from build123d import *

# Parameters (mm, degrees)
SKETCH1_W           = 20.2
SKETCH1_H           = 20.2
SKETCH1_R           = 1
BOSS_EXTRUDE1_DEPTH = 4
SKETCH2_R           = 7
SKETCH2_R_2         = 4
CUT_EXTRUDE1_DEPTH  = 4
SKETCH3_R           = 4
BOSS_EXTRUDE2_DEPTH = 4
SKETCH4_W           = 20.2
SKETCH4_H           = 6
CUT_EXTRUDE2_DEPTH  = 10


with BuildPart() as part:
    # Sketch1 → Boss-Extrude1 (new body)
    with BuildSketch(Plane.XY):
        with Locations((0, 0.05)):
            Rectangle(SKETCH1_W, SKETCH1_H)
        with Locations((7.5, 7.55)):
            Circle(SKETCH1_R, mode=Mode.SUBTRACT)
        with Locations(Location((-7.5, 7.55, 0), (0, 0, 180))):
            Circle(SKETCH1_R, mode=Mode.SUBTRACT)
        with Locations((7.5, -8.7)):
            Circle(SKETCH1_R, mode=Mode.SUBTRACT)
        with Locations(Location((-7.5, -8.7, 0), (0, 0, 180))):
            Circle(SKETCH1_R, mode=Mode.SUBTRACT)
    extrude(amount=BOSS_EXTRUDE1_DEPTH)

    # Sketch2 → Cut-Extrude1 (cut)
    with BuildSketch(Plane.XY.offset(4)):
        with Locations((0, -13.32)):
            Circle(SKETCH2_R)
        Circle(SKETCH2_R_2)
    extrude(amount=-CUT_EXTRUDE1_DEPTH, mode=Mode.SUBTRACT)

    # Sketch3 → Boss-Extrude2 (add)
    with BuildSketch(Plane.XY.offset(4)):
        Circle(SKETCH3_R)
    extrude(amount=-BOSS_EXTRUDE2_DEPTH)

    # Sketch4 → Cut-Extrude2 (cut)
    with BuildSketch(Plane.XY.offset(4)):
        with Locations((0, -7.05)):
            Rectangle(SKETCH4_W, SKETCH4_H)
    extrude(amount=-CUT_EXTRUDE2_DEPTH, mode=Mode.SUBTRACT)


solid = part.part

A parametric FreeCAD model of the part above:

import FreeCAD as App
import Part
import Sketcher
from FreeCAD import Vector
Q = App.Units.Quantity

doc = App.newDocument("Part")
body = doc.addObject("PartDesign::Body", "Body")

# Sketch on XY plane
sketch1 = body.newObject("Sketcher::SketchObject", "Sketch")
sketch1.AttachmentSupport = (doc.getObject("XY_Plane"), [""])
sketch1.MapMode = "FlatFace"
sketch1.addGeometry(Part.LineSegment(Vector(-10.1, 10.2, 0), Vector(-10.1, -10.1, 0)), False)
sketch1.addGeometry(Part.LineSegment(Vector(-10.1, -10.1, 0), Vector(10.1, -10.1, 0)), False)
sketch1.addGeometry(Part.LineSegment(Vector(10.1, -10.1, 0), Vector(10.1, 10.2, 0)), False)
sketch1.addGeometry(Part.LineSegment(Vector(10.1, 10.2, 0), Vector(-10.1, 10.2, 0)), False)
sketch1.addGeometry(Part.Circle(Vector(-7.5, -8.7, 0), Vector(0, 0, 1), 1), False)
sketch1.addGeometry(Part.Circle(Vector(7.5, -8.7, 0), Vector(0, 0, 1), 1), False)
sketch1.addGeometry(Part.Circle(Vector(-7.5, 7.5, 0), Vector(0, 0, 1), 1), False)
sketch1.addGeometry(Part.Circle(Vector(7.5, 7.5, 0), Vector(0, 0, 1), 1), False)
sketch1.addConstraint(Sketcher.Constraint("Coincident", 0, 2, 1, 1))
sketch1.addConstraint(Sketcher.Constraint("Coincident", 1, 2, 2, 1))
sketch1.addConstraint(Sketcher.Constraint("Coincident", 2, 2, 3, 1))
sketch1.addConstraint(Sketcher.Constraint("Coincident", 3, 2, 0, 1))
sketch1.addConstraint(Sketcher.Constraint("Vertical", 0))
sketch1.addConstraint(Sketcher.Constraint("Horizontal", 1))
sketch1.addConstraint(Sketcher.Constraint("Vertical", 2))
sketch1.addConstraint(Sketcher.Constraint("Horizontal", 3))
sketch1.addConstraint(Sketcher.Constraint("Equal", 4, 5))
sketch1.addConstraint(Sketcher.Constraint("Equal", 5, 6))
sketch1.addConstraint(Sketcher.Constraint("Equal", 6, 7))
sketch1.addConstraint(Sketcher.Constraint("Symmetric", 4, 3, 5, 3, -2))
sketch1.addConstraint(Sketcher.Constraint("Symmetric", 6, 3, 7, 3, -2))
sketch1.addConstraint(Sketcher.Constraint("Vertical", 4, 3, 6, 3))
sketch1.addConstraint(Sketcher.Constraint("Equal", 3, 0))
sketch1.addConstraint(Sketcher.Constraint("Diameter", 4, Q("2 mm")))
sketch1.addConstraint(Sketcher.Constraint("DistanceX", 1, 1, 1, 2, Q("20.2 mm")))
sketch1.addConstraint(Sketcher.Constraint("DistanceX", 4, 3, 5, 3, Q("15 mm")))
sketch1.addConstraint(Sketcher.Constraint("DistanceY", 4, 3, -1, 1, Q("8.7 mm")))
sketch1.addConstraint(Sketcher.Constraint("DistanceX", 0, 2, -1, 1, Q("10.1 mm")))
sketch1.addConstraint(Sketcher.Constraint("DistanceY", 0, 2, 6, 3, Q("17.6 mm")))
sketch1.addConstraint(Sketcher.Constraint("DistanceY", -1, 1, 6, 3, Q("7.55 mm")))
pad1 = body.newObject("PartDesign::Pad", "Pad")
pad1.Profile = sketch1
pad1.Length = 4

# Sketch on XY plane
sketch2 = body.newObject("Sketcher::SketchObject", "Sketch001")
sketch2.AttachmentSupport = (doc.getObject("XY_Plane"), [""])
sketch2.MapMode = "FlatFace"
sketch2.AttachmentOffset = App.Placement(Vector(0, 0, 4), App.Rotation())
sketch2.addGeometry(Part.Circle(Vector(0, -13.3, 0), Vector(0, 0, 1), 7), False)
sketch2.addGeometry(Part.Circle(Vector(0, 0, 0), Vector(0, 0, 1), 4), False)
sketch2.addConstraint(Sketcher.Constraint("Coincident", 1, 3, -1, 1))
sketch2.addConstraint(Sketcher.Constraint("PointOnObject", 0, 3, -2))
sketch2.addConstraint(Sketcher.Constraint("Diameter", 0, Q("14 mm")))
sketch2.addConstraint(Sketcher.Constraint("Diameter", 1, Q("8 mm")))
sketch2.addConstraint(Sketcher.Constraint("DistanceY", 0, 3, -1, 1, Q("13.32 mm")))
pocket1 = body.newObject("PartDesign::Pocket", "Pocket")
pocket1.Profile = sketch2
pocket1.Length = 4

# Sketch on XY plane
sketch3 = body.newObject("Sketcher::SketchObject", "Sketch002")
sketch3.AttachmentSupport = (doc.getObject("XY_Plane"), [""])
sketch3.MapMode = "FlatFace"
sketch3.AttachmentOffset = App.Placement(Vector(0, 0, 4), App.Rotation())
sketch3.addGeometry(Part.Circle(Vector(0, 0, 0), Vector(0, 0, 1), 4), False)
sketch3.addConstraint(Sketcher.Constraint("Coincident", 0, 3, -1, 1))
sketch3.addConstraint(Sketcher.Constraint("Diameter", 0, Q("8 mm")))
pad2 = body.newObject("PartDesign::Pad", "Pad001")
pad2.Profile = sketch3
pad2.Length = 4
pad2.Reversed = True

# Sketch on XY plane
sketch4 = body.newObject("Sketcher::SketchObject", "Sketch003")
sketch4.AttachmentSupport = (doc.getObject("XY_Plane"), [""])
sketch4.MapMode = "FlatFace"
sketch4.AttachmentOffset = App.Placement(Vector(0, 0, 4), App.Rotation())
sketch4.addGeometry(Part.LineSegment(Vector(-10, -4, 0), Vector(-10, -10, 0)), False)
sketch4.addGeometry(Part.LineSegment(Vector(-10, -10, 0), Vector(10, -10, 0)), False)
sketch4.addGeometry(Part.LineSegment(Vector(10, -10, 0), Vector(10, -4, 0)), False)
sketch4.addGeometry(Part.LineSegment(Vector(10, -4, 0), Vector(-10, -4, 0)), False)
sketch4.addConstraint(Sketcher.Constraint("Coincident", 0, 2, 1, 1))
sketch4.addConstraint(Sketcher.Constraint("Coincident", 1, 2, 2, 1))
sketch4.addConstraint(Sketcher.Constraint("Coincident", 2, 2, 3, 1))
sketch4.addConstraint(Sketcher.Constraint("Coincident", 3, 2, 0, 1))
sketch4.addConstraint(Sketcher.Constraint("Vertical", 0))
sketch4.addConstraint(Sketcher.Constraint("Horizontal", 1))
sketch4.addConstraint(Sketcher.Constraint("Vertical", 2))
sketch4.addConstraint(Sketcher.Constraint("Horizontal", 3))
sketch4.addConstraint(Sketcher.Constraint("DistanceY", 0, 2, 0, 1, Q("6 mm")))
sketch4.addConstraint(Sketcher.Constraint("DistanceX", 1, 1, 1, 2, Q("20.2 mm")))
sketch4.addConstraint(Sketcher.Constraint("DistanceX", 0, 2, -1, 1, Q("10.1 mm")))
sketch4.addConstraint(Sketcher.Constraint("DistanceY", 0, 2, -1, 1, Q("10.05 mm")))
pocket2 = body.newObject("PartDesign::Pocket", "Pocket001")
pocket2.Profile = sketch4
pocket2.Length = 10

doc.recompute()
